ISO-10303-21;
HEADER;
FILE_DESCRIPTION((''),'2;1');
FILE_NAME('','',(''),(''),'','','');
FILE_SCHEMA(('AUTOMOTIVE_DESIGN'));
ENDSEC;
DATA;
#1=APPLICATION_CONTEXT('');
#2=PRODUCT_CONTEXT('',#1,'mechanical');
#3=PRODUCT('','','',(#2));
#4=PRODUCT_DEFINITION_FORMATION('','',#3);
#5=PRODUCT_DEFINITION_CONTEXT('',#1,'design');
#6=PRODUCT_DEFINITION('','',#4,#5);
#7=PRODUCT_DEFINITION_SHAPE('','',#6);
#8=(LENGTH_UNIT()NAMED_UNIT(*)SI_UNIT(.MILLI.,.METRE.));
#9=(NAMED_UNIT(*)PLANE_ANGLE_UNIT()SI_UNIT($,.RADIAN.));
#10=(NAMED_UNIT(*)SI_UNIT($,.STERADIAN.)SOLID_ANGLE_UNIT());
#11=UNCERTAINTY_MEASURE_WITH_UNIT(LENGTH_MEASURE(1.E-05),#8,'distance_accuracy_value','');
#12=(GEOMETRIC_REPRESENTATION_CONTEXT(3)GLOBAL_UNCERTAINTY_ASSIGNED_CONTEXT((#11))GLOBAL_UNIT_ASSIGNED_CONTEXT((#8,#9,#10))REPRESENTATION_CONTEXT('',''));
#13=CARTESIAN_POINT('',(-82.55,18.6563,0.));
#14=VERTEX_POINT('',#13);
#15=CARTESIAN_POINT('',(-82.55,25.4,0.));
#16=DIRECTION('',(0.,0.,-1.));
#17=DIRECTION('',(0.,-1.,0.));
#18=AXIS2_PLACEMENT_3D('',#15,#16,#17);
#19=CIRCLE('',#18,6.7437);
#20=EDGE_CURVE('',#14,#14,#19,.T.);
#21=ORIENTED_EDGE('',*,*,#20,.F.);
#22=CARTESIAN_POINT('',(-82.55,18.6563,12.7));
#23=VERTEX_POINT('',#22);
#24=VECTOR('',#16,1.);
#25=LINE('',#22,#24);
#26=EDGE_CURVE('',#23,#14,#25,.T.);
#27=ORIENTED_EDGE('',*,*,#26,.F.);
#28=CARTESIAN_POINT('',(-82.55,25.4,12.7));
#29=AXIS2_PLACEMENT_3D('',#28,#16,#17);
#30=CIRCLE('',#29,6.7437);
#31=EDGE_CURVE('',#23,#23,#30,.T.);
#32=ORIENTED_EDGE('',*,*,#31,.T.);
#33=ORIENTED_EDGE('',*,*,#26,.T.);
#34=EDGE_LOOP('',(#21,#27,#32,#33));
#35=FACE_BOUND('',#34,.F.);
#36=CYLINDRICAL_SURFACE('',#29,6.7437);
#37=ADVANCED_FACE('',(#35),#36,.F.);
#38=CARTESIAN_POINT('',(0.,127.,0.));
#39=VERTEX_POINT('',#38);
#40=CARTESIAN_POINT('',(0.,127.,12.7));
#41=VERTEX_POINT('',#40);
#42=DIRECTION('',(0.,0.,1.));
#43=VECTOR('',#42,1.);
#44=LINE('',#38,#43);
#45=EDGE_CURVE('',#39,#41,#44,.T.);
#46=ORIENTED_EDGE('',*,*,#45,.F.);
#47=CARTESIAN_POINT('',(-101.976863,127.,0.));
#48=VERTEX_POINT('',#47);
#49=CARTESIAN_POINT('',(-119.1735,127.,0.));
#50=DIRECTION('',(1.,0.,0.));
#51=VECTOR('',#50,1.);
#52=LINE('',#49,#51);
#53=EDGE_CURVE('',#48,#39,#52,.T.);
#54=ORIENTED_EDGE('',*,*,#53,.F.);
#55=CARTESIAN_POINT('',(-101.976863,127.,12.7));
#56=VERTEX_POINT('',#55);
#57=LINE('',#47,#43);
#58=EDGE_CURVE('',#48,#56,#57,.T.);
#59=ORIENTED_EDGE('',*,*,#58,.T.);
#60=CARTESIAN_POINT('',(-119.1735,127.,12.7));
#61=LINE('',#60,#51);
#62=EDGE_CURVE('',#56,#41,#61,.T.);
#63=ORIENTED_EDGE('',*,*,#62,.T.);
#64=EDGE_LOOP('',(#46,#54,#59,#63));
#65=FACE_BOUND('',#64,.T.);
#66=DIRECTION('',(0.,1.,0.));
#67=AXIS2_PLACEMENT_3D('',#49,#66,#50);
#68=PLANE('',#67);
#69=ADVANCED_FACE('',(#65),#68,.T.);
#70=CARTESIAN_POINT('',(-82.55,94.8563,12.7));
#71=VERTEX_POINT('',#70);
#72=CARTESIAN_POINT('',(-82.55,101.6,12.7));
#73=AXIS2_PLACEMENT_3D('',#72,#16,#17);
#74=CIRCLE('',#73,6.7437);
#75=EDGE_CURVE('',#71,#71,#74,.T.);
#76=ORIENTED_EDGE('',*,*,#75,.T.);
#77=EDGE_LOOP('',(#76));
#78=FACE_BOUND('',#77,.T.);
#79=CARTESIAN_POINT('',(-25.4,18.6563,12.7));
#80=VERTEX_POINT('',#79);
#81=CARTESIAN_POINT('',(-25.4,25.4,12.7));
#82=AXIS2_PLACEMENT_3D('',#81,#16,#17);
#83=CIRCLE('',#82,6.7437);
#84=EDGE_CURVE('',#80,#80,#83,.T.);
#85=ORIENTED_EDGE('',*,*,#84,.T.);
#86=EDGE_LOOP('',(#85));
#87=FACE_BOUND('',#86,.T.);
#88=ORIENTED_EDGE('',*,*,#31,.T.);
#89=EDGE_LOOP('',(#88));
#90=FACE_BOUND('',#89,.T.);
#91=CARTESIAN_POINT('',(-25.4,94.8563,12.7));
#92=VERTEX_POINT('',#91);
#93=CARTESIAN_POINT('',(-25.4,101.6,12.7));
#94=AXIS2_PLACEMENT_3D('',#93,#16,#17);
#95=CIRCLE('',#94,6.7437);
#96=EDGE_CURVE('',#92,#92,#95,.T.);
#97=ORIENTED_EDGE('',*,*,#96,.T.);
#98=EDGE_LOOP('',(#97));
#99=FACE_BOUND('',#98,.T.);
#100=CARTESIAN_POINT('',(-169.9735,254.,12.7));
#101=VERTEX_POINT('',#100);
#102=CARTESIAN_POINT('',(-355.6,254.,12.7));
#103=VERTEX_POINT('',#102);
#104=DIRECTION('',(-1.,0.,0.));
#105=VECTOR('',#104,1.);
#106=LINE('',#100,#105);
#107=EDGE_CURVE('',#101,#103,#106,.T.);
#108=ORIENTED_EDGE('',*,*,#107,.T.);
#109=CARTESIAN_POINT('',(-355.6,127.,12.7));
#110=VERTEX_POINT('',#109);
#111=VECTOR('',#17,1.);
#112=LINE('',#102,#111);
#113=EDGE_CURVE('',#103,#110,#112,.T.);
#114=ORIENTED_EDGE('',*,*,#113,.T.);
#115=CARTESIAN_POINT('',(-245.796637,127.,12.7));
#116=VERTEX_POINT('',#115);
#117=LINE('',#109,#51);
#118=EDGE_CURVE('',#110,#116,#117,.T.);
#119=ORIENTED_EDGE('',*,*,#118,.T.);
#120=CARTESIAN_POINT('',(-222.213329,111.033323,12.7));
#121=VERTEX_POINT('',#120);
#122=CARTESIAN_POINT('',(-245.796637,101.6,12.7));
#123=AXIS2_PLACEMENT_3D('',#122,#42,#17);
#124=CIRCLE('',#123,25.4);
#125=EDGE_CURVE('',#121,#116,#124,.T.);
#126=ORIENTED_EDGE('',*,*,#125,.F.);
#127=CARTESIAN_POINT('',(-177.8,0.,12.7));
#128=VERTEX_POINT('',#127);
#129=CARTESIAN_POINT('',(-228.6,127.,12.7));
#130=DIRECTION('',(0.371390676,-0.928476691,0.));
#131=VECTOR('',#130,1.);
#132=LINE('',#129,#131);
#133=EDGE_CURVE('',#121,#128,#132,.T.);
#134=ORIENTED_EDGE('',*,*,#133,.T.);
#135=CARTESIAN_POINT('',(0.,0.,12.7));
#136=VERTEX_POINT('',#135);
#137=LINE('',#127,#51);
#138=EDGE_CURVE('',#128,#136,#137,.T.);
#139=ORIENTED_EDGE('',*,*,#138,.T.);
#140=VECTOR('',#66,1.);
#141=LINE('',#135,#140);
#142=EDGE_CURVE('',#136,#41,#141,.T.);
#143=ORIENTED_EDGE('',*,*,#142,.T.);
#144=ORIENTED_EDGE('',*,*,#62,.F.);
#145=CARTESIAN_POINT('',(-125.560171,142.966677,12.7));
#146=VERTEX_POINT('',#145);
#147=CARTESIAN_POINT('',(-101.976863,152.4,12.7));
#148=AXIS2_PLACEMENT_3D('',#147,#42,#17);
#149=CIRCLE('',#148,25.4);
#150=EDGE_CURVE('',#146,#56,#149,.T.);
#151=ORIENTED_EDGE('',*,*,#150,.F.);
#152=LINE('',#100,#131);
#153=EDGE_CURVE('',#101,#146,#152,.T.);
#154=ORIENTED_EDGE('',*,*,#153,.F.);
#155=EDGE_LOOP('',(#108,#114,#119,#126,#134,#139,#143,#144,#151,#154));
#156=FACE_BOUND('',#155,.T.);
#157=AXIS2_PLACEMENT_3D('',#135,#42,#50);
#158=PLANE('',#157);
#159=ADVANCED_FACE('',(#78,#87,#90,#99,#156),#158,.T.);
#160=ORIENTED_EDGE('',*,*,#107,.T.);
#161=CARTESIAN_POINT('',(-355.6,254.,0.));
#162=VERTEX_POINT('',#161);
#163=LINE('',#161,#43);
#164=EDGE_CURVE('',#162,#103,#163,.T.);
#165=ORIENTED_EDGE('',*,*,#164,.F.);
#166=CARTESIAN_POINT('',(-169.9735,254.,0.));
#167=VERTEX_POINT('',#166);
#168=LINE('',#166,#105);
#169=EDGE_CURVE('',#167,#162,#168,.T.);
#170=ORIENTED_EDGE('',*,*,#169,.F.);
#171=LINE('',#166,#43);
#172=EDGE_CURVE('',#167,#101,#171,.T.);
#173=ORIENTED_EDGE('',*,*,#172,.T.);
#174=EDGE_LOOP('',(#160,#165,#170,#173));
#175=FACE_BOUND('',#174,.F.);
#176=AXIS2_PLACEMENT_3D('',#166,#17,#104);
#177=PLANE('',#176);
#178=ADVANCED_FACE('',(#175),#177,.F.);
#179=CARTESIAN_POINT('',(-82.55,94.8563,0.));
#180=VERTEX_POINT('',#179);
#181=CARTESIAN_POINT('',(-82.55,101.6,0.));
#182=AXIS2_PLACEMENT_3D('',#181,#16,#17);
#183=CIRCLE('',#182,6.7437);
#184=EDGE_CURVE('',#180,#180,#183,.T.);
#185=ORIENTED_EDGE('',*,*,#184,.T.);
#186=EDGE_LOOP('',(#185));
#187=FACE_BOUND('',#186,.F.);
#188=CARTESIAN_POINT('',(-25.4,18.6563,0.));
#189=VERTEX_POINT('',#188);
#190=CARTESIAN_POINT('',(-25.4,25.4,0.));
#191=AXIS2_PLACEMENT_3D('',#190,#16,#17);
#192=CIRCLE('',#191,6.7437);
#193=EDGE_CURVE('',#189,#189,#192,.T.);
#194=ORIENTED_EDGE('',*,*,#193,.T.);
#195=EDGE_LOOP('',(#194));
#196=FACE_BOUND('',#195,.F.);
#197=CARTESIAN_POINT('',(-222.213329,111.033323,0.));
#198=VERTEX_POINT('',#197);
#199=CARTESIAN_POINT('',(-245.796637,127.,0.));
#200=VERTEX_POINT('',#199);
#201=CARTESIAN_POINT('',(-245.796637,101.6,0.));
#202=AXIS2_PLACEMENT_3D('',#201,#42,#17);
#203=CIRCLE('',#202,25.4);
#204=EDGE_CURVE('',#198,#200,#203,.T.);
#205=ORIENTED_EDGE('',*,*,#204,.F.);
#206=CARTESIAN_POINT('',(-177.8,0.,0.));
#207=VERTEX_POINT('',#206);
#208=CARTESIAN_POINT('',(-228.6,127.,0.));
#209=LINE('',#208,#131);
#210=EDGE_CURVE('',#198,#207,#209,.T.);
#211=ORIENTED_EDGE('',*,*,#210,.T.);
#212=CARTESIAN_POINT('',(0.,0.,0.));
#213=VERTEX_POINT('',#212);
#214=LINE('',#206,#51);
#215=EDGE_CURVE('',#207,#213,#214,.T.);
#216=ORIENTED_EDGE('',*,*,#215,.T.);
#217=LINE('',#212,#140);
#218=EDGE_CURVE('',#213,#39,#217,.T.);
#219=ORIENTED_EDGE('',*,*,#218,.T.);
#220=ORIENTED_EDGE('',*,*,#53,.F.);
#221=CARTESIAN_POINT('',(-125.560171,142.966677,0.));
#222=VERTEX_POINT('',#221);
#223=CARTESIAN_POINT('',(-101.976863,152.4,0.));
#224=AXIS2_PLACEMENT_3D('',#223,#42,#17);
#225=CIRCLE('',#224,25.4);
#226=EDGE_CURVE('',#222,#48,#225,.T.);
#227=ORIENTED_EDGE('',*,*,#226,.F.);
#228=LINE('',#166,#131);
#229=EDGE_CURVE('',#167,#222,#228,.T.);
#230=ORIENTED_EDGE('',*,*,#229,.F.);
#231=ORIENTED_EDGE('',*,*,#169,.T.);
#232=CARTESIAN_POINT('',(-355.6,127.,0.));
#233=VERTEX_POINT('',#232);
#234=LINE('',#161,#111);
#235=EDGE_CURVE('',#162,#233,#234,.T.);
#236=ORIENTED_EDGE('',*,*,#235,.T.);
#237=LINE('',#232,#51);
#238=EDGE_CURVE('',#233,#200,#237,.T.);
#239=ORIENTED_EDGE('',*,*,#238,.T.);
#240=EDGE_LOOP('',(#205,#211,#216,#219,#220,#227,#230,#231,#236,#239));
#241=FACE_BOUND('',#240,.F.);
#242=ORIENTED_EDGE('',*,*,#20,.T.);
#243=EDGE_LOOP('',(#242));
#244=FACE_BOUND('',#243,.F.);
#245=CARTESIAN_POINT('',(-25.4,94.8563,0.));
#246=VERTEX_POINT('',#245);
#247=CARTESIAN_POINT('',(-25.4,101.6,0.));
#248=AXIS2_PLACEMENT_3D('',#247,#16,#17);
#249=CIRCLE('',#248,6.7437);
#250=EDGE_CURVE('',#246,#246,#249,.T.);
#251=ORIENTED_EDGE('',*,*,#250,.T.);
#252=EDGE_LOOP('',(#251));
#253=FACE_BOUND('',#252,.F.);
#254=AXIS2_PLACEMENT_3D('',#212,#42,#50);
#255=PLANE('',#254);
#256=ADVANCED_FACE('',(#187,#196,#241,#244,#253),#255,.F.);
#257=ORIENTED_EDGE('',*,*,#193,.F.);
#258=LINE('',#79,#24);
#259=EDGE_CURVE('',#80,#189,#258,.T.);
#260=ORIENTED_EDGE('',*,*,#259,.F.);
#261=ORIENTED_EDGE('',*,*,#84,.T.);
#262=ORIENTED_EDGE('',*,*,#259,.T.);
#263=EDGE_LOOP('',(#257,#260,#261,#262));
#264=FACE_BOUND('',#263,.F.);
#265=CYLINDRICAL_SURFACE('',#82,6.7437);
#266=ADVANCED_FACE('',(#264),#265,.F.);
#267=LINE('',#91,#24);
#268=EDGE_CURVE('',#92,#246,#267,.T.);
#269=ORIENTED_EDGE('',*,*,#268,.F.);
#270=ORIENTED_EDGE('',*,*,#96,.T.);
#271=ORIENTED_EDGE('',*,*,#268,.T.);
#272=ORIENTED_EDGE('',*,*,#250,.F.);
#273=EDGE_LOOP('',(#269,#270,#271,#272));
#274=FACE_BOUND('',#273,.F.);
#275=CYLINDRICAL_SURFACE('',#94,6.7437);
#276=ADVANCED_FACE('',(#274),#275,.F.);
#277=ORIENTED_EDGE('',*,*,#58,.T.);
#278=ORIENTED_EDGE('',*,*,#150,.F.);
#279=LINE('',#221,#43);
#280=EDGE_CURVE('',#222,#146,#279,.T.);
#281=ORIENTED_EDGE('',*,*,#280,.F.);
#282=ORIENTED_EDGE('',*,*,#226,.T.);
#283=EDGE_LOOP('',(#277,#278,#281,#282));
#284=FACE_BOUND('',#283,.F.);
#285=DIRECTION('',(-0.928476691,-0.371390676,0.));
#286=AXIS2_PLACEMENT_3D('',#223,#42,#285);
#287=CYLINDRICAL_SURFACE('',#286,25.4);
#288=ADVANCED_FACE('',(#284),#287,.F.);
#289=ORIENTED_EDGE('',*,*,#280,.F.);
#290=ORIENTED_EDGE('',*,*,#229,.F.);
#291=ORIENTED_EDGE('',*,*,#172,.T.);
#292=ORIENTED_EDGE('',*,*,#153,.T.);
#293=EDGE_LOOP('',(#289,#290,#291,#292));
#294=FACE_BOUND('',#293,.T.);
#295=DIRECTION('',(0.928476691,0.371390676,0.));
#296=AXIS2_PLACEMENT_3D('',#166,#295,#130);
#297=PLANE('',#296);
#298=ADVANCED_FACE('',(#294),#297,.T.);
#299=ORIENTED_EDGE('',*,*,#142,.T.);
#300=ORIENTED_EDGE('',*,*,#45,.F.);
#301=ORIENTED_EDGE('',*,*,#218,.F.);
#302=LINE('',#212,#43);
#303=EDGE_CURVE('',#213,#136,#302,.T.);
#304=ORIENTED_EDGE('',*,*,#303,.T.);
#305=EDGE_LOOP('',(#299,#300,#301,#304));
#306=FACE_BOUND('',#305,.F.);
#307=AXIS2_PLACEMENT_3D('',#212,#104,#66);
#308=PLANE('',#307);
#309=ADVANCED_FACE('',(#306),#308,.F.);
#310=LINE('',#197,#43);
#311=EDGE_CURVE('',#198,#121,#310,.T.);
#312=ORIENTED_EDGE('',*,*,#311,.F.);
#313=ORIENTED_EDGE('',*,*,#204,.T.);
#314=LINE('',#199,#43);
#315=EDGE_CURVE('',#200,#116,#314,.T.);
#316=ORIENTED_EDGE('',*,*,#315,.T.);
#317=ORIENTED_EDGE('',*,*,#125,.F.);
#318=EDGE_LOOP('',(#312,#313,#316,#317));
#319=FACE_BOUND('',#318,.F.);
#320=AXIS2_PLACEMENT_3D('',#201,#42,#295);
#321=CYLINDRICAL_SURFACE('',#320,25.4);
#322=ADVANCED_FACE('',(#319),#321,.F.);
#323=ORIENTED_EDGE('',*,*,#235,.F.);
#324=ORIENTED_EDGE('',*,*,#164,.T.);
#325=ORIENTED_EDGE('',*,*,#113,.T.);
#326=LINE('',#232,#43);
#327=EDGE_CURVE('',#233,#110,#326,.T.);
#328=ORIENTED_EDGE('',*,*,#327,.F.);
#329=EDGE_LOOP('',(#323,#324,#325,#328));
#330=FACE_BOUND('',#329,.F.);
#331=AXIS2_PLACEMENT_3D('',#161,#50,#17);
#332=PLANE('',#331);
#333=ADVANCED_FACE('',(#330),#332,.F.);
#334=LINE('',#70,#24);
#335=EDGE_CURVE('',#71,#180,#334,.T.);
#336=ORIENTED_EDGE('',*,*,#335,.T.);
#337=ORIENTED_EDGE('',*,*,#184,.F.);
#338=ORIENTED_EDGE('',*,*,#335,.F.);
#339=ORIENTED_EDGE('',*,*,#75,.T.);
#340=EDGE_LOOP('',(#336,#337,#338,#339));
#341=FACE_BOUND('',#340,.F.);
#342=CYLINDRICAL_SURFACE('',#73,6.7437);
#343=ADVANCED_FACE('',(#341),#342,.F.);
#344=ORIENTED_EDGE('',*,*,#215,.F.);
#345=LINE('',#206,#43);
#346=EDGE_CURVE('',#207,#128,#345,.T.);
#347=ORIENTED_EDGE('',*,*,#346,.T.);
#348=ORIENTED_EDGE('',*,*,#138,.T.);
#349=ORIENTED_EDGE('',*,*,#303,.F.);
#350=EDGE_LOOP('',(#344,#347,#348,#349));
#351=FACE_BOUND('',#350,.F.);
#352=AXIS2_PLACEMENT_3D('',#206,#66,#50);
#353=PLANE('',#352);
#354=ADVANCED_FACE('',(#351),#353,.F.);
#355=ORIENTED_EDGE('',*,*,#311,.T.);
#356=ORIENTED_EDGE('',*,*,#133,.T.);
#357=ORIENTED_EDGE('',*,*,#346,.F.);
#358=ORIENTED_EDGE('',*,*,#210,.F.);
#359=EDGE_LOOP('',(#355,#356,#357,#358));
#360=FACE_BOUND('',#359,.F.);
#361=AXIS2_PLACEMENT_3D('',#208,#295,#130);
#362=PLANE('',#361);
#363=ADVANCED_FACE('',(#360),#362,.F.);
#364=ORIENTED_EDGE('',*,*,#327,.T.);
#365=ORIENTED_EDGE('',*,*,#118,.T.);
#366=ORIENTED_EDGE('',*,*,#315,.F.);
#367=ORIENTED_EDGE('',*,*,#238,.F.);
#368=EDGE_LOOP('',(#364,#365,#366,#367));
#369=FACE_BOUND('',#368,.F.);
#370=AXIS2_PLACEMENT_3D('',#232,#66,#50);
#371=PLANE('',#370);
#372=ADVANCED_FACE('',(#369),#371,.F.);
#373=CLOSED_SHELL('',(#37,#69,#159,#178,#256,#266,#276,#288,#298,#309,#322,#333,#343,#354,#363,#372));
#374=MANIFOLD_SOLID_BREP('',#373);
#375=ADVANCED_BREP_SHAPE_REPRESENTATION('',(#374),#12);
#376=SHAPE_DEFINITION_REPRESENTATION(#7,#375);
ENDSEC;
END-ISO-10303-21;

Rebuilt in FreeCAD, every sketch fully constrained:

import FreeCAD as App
import Part
import Sketcher
from FreeCAD import Vector
Q = App.Units.Quantity


def edges_at(feature, points):
    """Names of the edges that pass closest to the given points."""
    edges = feature.Shape.Edges
    near = lambda p: min(range(len(edges)), key=lambda i: edges[i].distToShape(Part.Vertex(*p))[0])
    return sorted({f"Edge{near(p) + 1}" for p in points})

doc = App.newDocument("Part")
body = doc.addObject("PartDesign::Body", "Body")

# Sketch on XY plane
sketch1 = body.newObject("Sketcher::SketchObject", "Sketch")
sketch1.AttachmentSupport = (doc.getObject("XY_Plane"), [""])
sketch1.MapMode = "FlatFace"
sketch1.addGeometry([
    Part.LineSegment(Vector(-228.6, 127, 0), Vector(-177.8, 0, 0)),  # 0
    Part.LineSegment(Vector(-177.8, 0, 0), Vector(0, 0, 0)),  # 1
    Part.LineSegment(Vector(0, 0, 0), Vector(0, 127, 0)),  # 2
    Part.LineSegment(Vector(0, 127, 0), Vector(-119.1735, 127, 0)),  # 3
    Part.LineSegment(Vector(-119.1735, 127, 0), Vector(-169.9735, 254, 0)),  # 4
    Part.LineSegment(Vector(-169.9735, 254, 0), Vector(-355.6, 254, 0)),  # 5
    Part.LineSegment(Vector(-355.6, 254, 0), Vector(-355.6, 127, 0)),  # 6
    Part.LineSegment(Vector(-355.6, 127, 0), Vector(-228.6, 127, 0)),  # 7
], False)
sketch1.addConstraint([
    Sketcher.Constraint("Coincident", 0, 2, 1, 1),
    Sketcher.Constraint("Coincident", 1, 2, 2, 1),
    Sketcher.Constraint("Coincident", 2, 2, 3, 1),
    Sketcher.Constraint("Coincident", 3, 2, 4, 1),
    Sketcher.Constraint("Coincident", 4, 2, 5, 1),
    Sketcher.Constraint("Coincident", 5, 2, 6, 1),
    Sketcher.Constraint("Coincident", 6, 2, 7, 1),
    Sketcher.Constraint("Coincident", 7, 2, 0, 1),
    Sketcher.Constraint("Horizontal", 1),
    Sketcher.Constraint("Vertical", 2),
    Sketcher.Constraint("Horizontal", 3),
    Sketcher.Constraint("Horizontal", 5),
    Sketcher.Constraint("Vertical", 6),
    Sketcher.Constraint("Horizontal", 7),
    Sketcher.Constraint("Coincident", 1, 2, -1, 1),
    Sketcher.Constraint("Parallel", 0, 4),
    Sketcher.Constraint("Horizontal", 3, 2, 6, 2),
    Sketcher.Constraint("Equal", 7, 2),
    Sketcher.Constraint("Equal", 2, 6),
    Sketcher.Constraint("DistanceX", 1, 1, 1, 2, Q("7 in")),
    Sketcher.Constraint("DistanceX", 7, 1, 7, 2, Q("5 in")),
    Sketcher.Constraint("DistanceX", 5, 2, -1, 1, Q("14 in")),
    Sketcher.Constraint("DistanceX", 3, 2, 3, 1, Q("119.1735 mm")),
])
pad1 = body.newObject("PartDesign::Pad", "Pad")
pad1.Profile = sketch1
pad1.Length = Q("0.5 in")
doc.recompute()

fillet = body.newObject("PartDesign::Fillet", "Fillet")
fillet.Base = (pad1, edges_at(pad1, [(-228.6, 127, 6.35), (-119.174, 127, 6.35)]))
fillet.Radius = Q("1 in")

# Sketch on XY plane
sketch2 = body.newObject("Sketcher::SketchObject", "Sketch001")
sketch2.AttachmentSupport = (doc.getObject("XY_Plane"), [""])
sketch2.MapMode = "FlatFace"
sketch2.AttachmentOffset = App.Placement(Vector(0, 0, 0.5 * 25.4), App.Rotation())
sketch2.addGeometry([
    Part.Circle(Vector(-25.4, 101.6, 0), Vector(0, 0, 1), 6.7437),
    Part.Circle(Vector(-82.55, 101.6, 0), Vector(0, 0, 1), 6.7437),
    Part.Circle(Vector(-82.55, 25.4, 0), Vector(0, 0, 1), 6.7437),
    Part.Circle(Vector(-25.4, 25.4, 0), Vector(0, 0, 1), 6.7437),
], False)
sketch2.addConstraint([
    Sketcher.Constraint("Equal", 0, 1),
    Sketcher.Constraint("Equal", 1, 2),
    Sketcher.Constraint("Equal", 2, 3),
    Sketcher.Constraint("Horizontal", 0, 3, 1, 3),
    Sketcher.Constraint("Horizontal", 2, 3, 3, 3),
    Sketcher.Constraint("Vertical", 1, 3, 2, 3),
    Sketcher.Constraint("Vertical", 0, 3, 3, 3),
    Sketcher.Constraint("Diameter", 0, Q("0.531 in")),
    Sketcher.Constraint("DistanceX", 0, 3, -1, 1, Q("1 in")),
    Sketcher.Constraint("DistanceY", -1, 1, 0, 3, Q("4 in")),
    Sketcher.Constraint("DistanceY", -1, 1, 2, 3, Q("1 in")),
    Sketcher.Constraint("DistanceX", 1, 3, -1, 1, Q("3.25 in")),
])
doc.recompute()
hole = body.newObject("PartDesign::Hole", "Hole")
hole.Profile = sketch2
hole.ThreadType = "None"
hole.Diameter = Q("0.531 in")
hole.DepthType = "ThroughAll"

doc.recompute()
